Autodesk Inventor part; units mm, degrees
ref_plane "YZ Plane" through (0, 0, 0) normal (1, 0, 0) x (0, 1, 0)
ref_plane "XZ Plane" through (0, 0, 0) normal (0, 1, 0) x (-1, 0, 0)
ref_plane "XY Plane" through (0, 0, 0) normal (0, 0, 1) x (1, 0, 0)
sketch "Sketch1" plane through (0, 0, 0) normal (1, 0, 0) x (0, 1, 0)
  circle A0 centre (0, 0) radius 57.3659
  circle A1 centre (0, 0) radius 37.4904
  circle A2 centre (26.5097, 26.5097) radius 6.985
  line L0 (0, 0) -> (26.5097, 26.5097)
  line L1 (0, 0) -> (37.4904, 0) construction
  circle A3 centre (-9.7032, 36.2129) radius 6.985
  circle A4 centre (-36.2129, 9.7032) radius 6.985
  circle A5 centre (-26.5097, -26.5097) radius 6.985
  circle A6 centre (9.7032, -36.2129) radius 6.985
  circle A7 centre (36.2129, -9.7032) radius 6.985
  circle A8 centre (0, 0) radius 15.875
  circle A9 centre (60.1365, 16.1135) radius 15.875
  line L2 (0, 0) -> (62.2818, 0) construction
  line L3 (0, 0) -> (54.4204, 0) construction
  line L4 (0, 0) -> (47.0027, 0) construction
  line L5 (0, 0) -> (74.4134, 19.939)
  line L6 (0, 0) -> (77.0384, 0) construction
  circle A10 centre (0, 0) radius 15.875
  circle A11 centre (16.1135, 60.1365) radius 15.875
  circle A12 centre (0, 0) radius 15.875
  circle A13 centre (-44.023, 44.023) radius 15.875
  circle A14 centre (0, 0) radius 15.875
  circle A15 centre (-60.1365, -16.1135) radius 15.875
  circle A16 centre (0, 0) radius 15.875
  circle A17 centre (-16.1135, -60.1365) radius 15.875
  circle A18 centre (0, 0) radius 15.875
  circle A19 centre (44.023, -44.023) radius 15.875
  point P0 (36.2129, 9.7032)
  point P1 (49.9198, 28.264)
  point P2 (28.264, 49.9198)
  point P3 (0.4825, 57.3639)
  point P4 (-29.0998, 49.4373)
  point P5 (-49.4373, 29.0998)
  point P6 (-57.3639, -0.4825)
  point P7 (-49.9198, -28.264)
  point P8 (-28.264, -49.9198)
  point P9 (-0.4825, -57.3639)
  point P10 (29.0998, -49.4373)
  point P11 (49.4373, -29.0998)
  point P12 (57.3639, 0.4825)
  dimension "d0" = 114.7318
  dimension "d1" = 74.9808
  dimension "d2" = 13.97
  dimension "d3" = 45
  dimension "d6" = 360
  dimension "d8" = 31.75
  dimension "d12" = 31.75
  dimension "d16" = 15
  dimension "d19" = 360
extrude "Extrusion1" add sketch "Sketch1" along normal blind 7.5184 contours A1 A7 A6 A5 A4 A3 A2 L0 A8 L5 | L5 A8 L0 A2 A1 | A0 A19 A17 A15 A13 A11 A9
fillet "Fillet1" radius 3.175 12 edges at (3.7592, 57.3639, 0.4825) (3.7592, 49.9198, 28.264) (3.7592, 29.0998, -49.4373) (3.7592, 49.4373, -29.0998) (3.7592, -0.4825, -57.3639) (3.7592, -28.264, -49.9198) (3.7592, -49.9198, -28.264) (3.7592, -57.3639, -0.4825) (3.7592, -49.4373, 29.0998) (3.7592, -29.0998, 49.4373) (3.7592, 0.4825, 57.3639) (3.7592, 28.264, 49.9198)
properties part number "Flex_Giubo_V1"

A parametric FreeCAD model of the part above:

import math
import FreeCAD as App
import Part
import Sketcher
from FreeCAD import Vector
Q = App.Units.Quantity


def edges_at(feature, points):
    """Names of the edges that pass closest to the given points."""
    edges = feature.Shape.Edges
    near = lambda p: min(range(len(edges)), key=lambda i: edges[i].distToShape(Part.Vertex(*p))[0])
    return sorted({f"Edge{near(p) + 1}" for p in points})

doc = App.newDocument("Part")
body = doc.addObject("PartDesign::Body", "Body")

sketch1 = body.newObject("Sketcher::SketchObject", "Sketch")
sketch1.AttachmentSupport = (doc.getObject("YZ_Plane"), [""])
sketch1.MapMode = "FlatFace"
sketch1.addGeometry(Part.ArcOfCircle(Part.Circle(Vector(0, 0, 0), Vector(0, 0, 1), 57), math.radians(-30), math.radians(0)), False)
sketch1.addGeometry(Part.ArcOfCircle(Part.Circle(Vector(60, 16, 0), Vector(0, 0, 1), 16), math.radians(-165), math.radians(-100)), False)
sketch1.addGeometry(Part.ArcOfCircle(Part.Circle(Vector(60, 16, 0), Vector(0, 0, 1), 16), math.radians(130), math.radians(195)), False)
sketch1.addGeometry(Part.ArcOfCircle(Part.Circle(Vector(0, 0, 0), Vector(0, 0, 1), 57), math.radians(30), math.radians(60)), False)
sketch1.addGeometry(Part.ArcOfCircle(Part.Circle(Vector(16, 60, 0), Vector(0, 0, 1), 16), math.radians(-170), math.radians(-40)), False)
sketch1.addGeometry(Part.ArcOfCircle(Part.Circle(Vector(0, 0, 0), Vector(0, 0, 1), 57), math.radians(90), math.radians(120)), False)
sketch1.addGeometry(Part.ArcOfCircle(Part.Circle(Vector(-44, 44, 0), Vector(0, 0, 1), 16), math.radians(-110), math.radians(20)), False)
sketch1.addGeometry(Part.ArcOfCircle(Part.Circle(Vector(0, 0, 0), Vector(0, 0, 1), 57), math.radians(150), math.radians(180)), False)
sketch1.addGeometry(Part.ArcOfCircle(Part.Circle(Vector(-60, -16, 0), Vector(0, 0, 1), 16), math.radians(-50), math.radians(80)), False)
sketch1.addGeometry(Part.ArcOfCircle(Part.Circle(Vector(0, 0, 0), Vector(0, 0, 1), 57), math.radians(-150), math.radians(-120)), False)
sketch1.addGeometry(Part.ArcOfCircle(Part.Circle(Vector(-16, -60, 0), Vector(0, 0, 1), 16), math.radians(10), math.radians(140)), False)
sketch1.addGeometry(Part.ArcOfCircle(Part.Circle(Vector(0, 0, 0), Vector(0, 0, 1), 57), math.radians(-90), math.radians(-60)), False)
sketch1.addGeometry(Part.ArcOfCircle(Part.Circle(Vector(44, -44, 0), Vector(0, 0, 1), 16), math.radians(70), math.radians(200)), False)
sketch1.addGeometry(Part.Circle(Vector(36, -10, 0), Vector(0, 0, 1), 7), False)
sketch1.addGeometry(Part.Circle(Vector(10, -36, 0), Vector(0, 0, 1), 7), False)
sketch1.addGeometry(Part.Circle(Vector(-27, -27, 0), Vector(0, 0, 1), 7), False)
sketch1.addGeometry(Part.Circle(Vector(-36, 10, 0), Vector(0, 0, 1), 7), False)
sketch1.addGeometry(Part.Circle(Vector(-10, 36, 0), Vector(0, 0, 1), 7), False)
sketch1.addGeometry(Part.Circle(Vector(27, 27, 0), Vector(0, 0, 1), 7), False)
sketch1.addGeometry(Part.Circle(Vector(0, 0, 0), Vector(0, 0, 1), 16), False)
sketch1.addConstraint(Sketcher.Constraint("Coincident", 0, 2, 1, 2))
sketch1.addConstraint(Sketcher.Constraint("Tangent", 1, 1, 2, 2))
sketch1.addConstraint(Sketcher.Constraint("Coincident", 2, 1, 3, 1))
sketch1.addConstraint(Sketcher.Constraint("Coincident", 3, 2, 4, 2))
sketch1.addConstraint(Sketcher.Constraint("Coincident", 4, 1, 5, 1))
sketch1.addConstraint(Sketcher.Constraint("Coincident", 5, 2, 6, 2))
sketch1.addConstraint(Sketcher.Constraint("Coincident", 6, 1, 7, 1))
sketch1.addConstraint(Sketcher.Constraint("Coincident", 7, 2, 8, 2))
sketch1.addConstraint(Sketcher.Constraint("Coincident", 8, 1, 9, 1))
sketch1.addConstraint(Sketcher.Constraint("Coincident", 9, 2, 10, 2))
sketch1.addConstraint(Sketcher.Constraint("Coincident", 10, 1, 11, 1))
sketch1.addConstraint(Sketcher.Constraint("Coincident", 11, 2, 12, 2))
sketch1.addConstraint(Sketcher.Constraint("Coincident", 12, 1, 0, 1))
sketch1.addConstraint(Sketcher.Constraint("Coincident", 0, 3, -1, 1))
sketch1.addConstraint(Sketcher.Constraint("Coincident", 3, 3, -1, 1))
sketch1.addConstraint(Sketcher.Constraint("Coincident", 5, 3, -1, 1))
sketch1.addConstraint(Sketcher.Constraint("Coincident", 7, 3, -1, 1))
sketch1.addConstraint(Sketcher.Constraint("Coincident", 9, 3, -1, 1))
sketch1.addConstraint(Sketcher.Constraint("Coincident", 11, 3, -1, 1))
sketch1.addConstraint(Sketcher.Constraint("Coincident", 19, 3, -1, 1))
sketch1.addConstraint(Sketcher.Constraint("Equal", 1, 2))
sketch1.addConstraint(Sketcher.Constraint("Equal", 0, 3))
sketch1.addConstraint(Sketcher.Constraint("Equal", 2, 4))
sketch1.addConstraint(Sketcher.Constraint("Equal", 3, 5))
sketch1.addConstraint(Sketcher.Constraint("Equal", 4, 6))
sketch1.addConstraint(Sketcher.Constraint("Equal", 5, 7))
sketch1.addConstraint(Sketcher.Constraint("Equal", 6, 8))
sketch1.addConstraint(Sketcher.Constraint("Equal", 7, 9))
sketch1.addConstraint(Sketcher.Constraint("Equal", 8, 10))
sketch1.addConstraint(Sketcher.Constraint("Equal", 9, 11))
sketch1.addConstraint(Sketcher.Constraint("Equal", 10, 12))
sketch1.addConstraint(Sketcher.Constraint("Equal", 13, 14))
sketch1.addConstraint(Sketcher.Constraint("Equal", 14, 15))
sketch1.addConstraint(Sketcher.Constraint("Equal", 15, 16))
sketch1.addConstraint(Sketcher.Constraint("Equal", 16, 17))
sketch1.addConstraint(Sketcher.Constraint("Equal", 17, 18))
sketch1.addConstraint(Sketcher.Constraint("Equal", 12, 19))
sketch1.addConstraint(Sketcher.Constraint("Symmetric", 1, 3, 8, 3, -1, 1))
sketch1.addConstraint(Sketcher.Constraint("Symmetric", 4, 3, 10, 3, -1, 1))
sketch1.addConstraint(Sketcher.Constraint("Symmetric", 6, 3, 12, 3, -1, 1))
sketch1.addConstraint(Sketcher.Constraint("Symmetric", 13, 3, 16, 3, -1, 1))
sketch1.addConstraint(Sketcher.Constraint("Symmetric", 14, 3, 17, 3, -1, 1))
sketch1.addConstraint(Sketcher.Constraint("Symmetric", 15, 3, 18, 3, -1, 1))
sketch1.addConstraint(Sketcher.Constraint("Diameter", 13, Q("0.55 in")))
sketch1.addConstraint(Sketcher.Constraint("Diameter", 19, Q("1.25 in")))
sketch1.addConstraint(Sketcher.Constraint("Radius", 0, Q("2.2585 in")))
sketch1.addConstraint(Sketcher.Constraint("DistanceY", -1, 1, 0, 2, Q("0.019 in")))
sketch1.addConstraint(Sketcher.Constraint("DistanceX", -1, 1, 4, 1, Q("0.019 in")))
sketch1.addConstraint(Sketcher.Constraint("DistanceY", 13, 3, 0, 2, Q("0.401 in")))
sketch1.addConstraint(Sketcher.Constraint("DistanceX", 17, 3, 4, 1, Q("0.401 in")))
sketch1.addConstraint(Sketcher.Constraint("DistanceY", -1, 1, 1, 3, Q("0.6344 in")))
sketch1.addConstraint(Sketcher.Constraint("DistanceX", -1, 1, 4, 3, Q("0.6344 in")))
sketch1.addConstraint(Sketcher.Constraint("DistanceX", 6, 3, -1, 1, Q("1.7332 in")))
sketch1.addConstraint(Sketcher.Constraint("DistanceY", -1, 1, 6, 3, Q("1.7332 in")))
sketch1.addConstraint(Sketcher.Constraint("DistanceX", -1, 1, 13, 3, Q("1.4257 in")))
sketch1.addConstraint(Sketcher.Constraint("DistanceY", 14, 3, -1, 1, Q("1.4257 in")))
sketch1.addConstraint(Sketcher.Constraint("DistanceX", 15, 3, -1, 1, Q("1.0437 in")))
sketch1.addConstraint(Sketcher.Constraint("DistanceY", 15, 3, -1, 1, Q("1.0437 in")))
sketch1.addConstraint(Sketcher.Constraint("DistanceX", 1, 1, 1, 3, Q("0.6037 in")))
pad1 = body.newObject("PartDesign::Pad", "Pad")
pad1.Profile = sketch1
pad1.Length = Q("0.296 in")
doc.recompute()

fillet = body.newObject("PartDesign::Fillet", "Fillet")
fillet.Base = (pad1, edges_at(pad1, [
    (3.759, 57.364, 0.482),
    (3.759, 49.92, 28.264),
    (3.759, 29.1, -49.437),
    (3.759, 49.437, -29.1),
    (3.759, -0.482, -57.364),
    (3.759, -28.264, -49.92),
    (3.759, -49.92, -28.264),
    (3.759, -57.364, -0.482),
    (3.759, -49.437, 29.1),
    (3.759, -29.1, 49.437),
    (3.759, 0.482, 57.364),
    (3.759, 28.264, 49.92),
]))
fillet.Radius = Q("0.125 in")

doc.recompute()
